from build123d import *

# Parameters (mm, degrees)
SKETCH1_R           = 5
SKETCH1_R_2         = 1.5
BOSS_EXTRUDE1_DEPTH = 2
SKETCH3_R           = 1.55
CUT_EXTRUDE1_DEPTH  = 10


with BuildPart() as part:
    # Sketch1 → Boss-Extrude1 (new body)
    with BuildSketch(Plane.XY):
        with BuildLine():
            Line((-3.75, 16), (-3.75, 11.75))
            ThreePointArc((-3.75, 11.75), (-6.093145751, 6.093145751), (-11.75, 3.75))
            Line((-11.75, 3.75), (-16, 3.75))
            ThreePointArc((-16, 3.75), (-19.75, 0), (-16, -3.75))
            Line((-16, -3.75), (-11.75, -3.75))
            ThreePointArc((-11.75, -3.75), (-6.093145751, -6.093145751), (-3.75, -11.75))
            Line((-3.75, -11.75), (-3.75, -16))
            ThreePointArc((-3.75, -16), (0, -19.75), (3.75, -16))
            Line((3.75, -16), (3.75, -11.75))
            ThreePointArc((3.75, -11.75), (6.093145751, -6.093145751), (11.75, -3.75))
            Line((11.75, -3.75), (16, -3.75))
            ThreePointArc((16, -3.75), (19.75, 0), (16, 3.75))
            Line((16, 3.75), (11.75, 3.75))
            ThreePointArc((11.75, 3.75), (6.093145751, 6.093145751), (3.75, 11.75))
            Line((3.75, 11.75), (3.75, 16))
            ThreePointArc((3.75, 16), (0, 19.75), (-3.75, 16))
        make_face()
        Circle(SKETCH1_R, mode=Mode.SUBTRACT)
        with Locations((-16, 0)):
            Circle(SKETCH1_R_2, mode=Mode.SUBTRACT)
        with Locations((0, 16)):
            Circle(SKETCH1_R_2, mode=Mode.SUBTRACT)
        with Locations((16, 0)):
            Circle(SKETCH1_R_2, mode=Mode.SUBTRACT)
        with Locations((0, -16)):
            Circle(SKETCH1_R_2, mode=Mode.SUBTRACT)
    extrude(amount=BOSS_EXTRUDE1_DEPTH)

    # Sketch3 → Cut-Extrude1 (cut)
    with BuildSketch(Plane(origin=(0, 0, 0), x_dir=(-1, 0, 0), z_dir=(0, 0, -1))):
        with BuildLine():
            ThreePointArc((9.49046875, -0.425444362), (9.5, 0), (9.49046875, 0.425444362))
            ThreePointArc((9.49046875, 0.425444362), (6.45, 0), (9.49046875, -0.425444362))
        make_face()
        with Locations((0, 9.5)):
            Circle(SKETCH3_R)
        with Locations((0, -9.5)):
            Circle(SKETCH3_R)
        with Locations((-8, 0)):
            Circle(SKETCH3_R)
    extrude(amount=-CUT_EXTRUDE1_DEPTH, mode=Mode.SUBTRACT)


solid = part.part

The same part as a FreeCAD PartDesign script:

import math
import FreeCAD as App
import Part
import Sketcher
from FreeCAD import Vector

doc = App.newDocument("Part")
body = doc.addObject("PartDesign::Body", "Body")

sketch1 = doc.addObject("Sketcher::SketchObject", "Sketch")
body.addObject(sketch1)
sketch1.AttachmentSupport = (doc.XY_Plane, [""])
sketch1.MapMode = "FlatFace"
sketch1.addGeometry([
    Part.LineSegment(Vector(-3.8, 16, 0), Vector(-3.8, 11.8, 0)),
    Part.ArcOfCircle(Part.Circle(Vector(-11.8, 11.8, 0), Vector(0, 0, 1), 8), math.radians(-90), math.radians(0)),
    Part.LineSegment(Vector(-11.8, 3.8, 0), Vector(-16, 3.8, 0)),
    Part.ArcOfCircle(Part.Circle(Vector(-16, 0, 0), Vector(0, 0, 1), 3.8), math.radians(90), math.radians(270)),
    Part.LineSegment(Vector(-16, -3.8, 0), Vector(-11.8, -3.8, 0)),
    Part.ArcOfCircle(Part.Circle(Vector(-11.8, -11.8, 0), Vector(0, 0, 1), 8), math.radians(0), math.radians(90)),
    Part.LineSegment(Vector(-3.8, -11.8, 0), Vector(-3.8, -16, 0)),
    Part.ArcOfCircle(Part.Circle(Vector(0, -16, 0), Vector(0, 0, 1), 3.8), math.radians(180), math.radians(360)),
    Part.LineSegment(Vector(3.8, -16, 0), Vector(3.8, -11.8, 0)),
    Part.ArcOfCircle(Part.Circle(Vector(11.8, -11.8, 0), Vector(0, 0, 1), 8), math.radians(90), math.radians(180)),
    Part.LineSegment(Vector(11.8, -3.8, 0), Vector(16, -3.8, 0)),
    Part.ArcOfCircle(Part.Circle(Vector(16, 0, 0), Vector(0, 0, 1), 3.8), math.radians(-90), math.radians(90)),
    Part.LineSegment(Vector(16, 3.8, 0), Vector(11.8, 3.8, 0)),
    Part.ArcOfCircle(Part.Circle(Vector(11.8, 11.8, 0), Vector(0, 0, 1), 8), math.radians(-180), math.radians(-90)),
    Part.LineSegment(Vector(3.8, 11.8, 0), Vector(3.8, 16, 0)),
    Part.ArcOfCircle(Part.Circle(Vector(0, 16, 0), Vector(0, 0, 1), 3.8), math.radians(0), math.radians(180)),
    Part.Circle(Vector(0, -16, 0), Vector(0, 0, 1), 1.5),
    Part.Circle(Vector(-16, 0, 0), Vector(0, 0, 1), 1.5),
    Part.Circle(Vector(0, 0, 0), Vector(0, 0, 1), 5),
    Part.Circle(Vector(16, 0, 0), Vector(0, 0, 1), 1.5),
    Part.Circle(Vector(0, 16, 0), Vector(0, 0, 1), 1.5),
], False)
sketch1.addConstraint([
    Sketcher.Constraint("Tangent", 0, 2, 1, 2),
    Sketcher.Constraint("Tangent", 1, 1, 2, 1),
    Sketcher.Constraint("Tangent", 2, 2, 3, 1),
    Sketcher.Constraint("Tangent", 3, 2, 4, 1),
    Sketcher.Constraint("Tangent", 4, 2, 5, 2),
    Sketcher.Constraint("Tangent", 5, 1, 6, 1),
    Sketcher.Constraint("Tangent", 6, 2, 7, 1),
    Sketcher.Constraint("Tangent", 7, 2, 8, 1),
    Sketcher.Constraint("Tangent", 8, 2, 9, 2),
    Sketcher.Constraint("Tangent", 9, 1, 10, 1),
    Sketcher.Constraint("Tangent", 10, 2, 11, 1),
    Sketcher.Constraint("Tangent", 11, 2, 12, 1),
    Sketcher.Constraint("Tangent", 12, 2, 13, 2),
    Sketcher.Constraint("Tangent", 13, 1, 14, 1),
    Sketcher.Constraint("Tangent", 14, 2, 15, 1),
    Sketcher.Constraint("Tangent", 15, 2, 0, 1),
    Sketcher.Constraint("Vertical", 0),
    Sketcher.Constraint("Horizontal", 2),
    Sketcher.Constraint("Horizontal", 4),
    Sketcher.Constraint("Vertical", 6),
    Sketcher.Constraint("Vertical", 8),
    Sketcher.Constraint("Horizontal", 10),
    Sketcher.Constraint("Horizontal", 12),
    Sketcher.Constraint("Vertical", 14),
    Sketcher.Constraint("Coincident", 18, 3, -1, 1),
    Sketcher.Constraint("Coincident", 16, 3, 7, 3),
    Sketcher.Constraint("Coincident", 17, 3, 3, 3),
    Sketcher.Constraint("Coincident", 19, 3, 11, 3),
    Sketcher.Constraint("Coincident", 20, 3, 15, 3),
    Sketcher.Constraint("Equal", 1, 5),
    Sketcher.Constraint("Equal", 3, 7),
    Sketcher.Constraint("Equal", 5, 9),
    Sketcher.Constraint("Equal", 7, 11),
    Sketcher.Constraint("Equal", 9, 13),
    Sketcher.Constraint("Equal", 11, 15),
    Sketcher.Constraint("Equal", 16, 17),
    Sketcher.Constraint("Equal", 17, 19),
    Sketcher.Constraint("Equal", 19, 20),
    Sketcher.Constraint("Symmetric", 1, 3, 9, 3, -1, 1),
    Sketcher.Constraint("Symmetric", 5, 3, 9, 3, -2),
    Sketcher.Constraint("Equal", 4, 10),
    Sketcher.Constraint("Equal", 12, 0),
    Sketcher.Constraint("Equal", 0, 6),
    Sketcher.Constraint("Diameter", 16, 3.0),
    Sketcher.Constraint("Diameter", 18, 10.0),
    Sketcher.Constraint("Radius", 1, 8.0),
    Sketcher.Constraint("Radius", 3, 3.75),
    Sketcher.Constraint("DistanceX", 3, 3, -1, 1, 16.0),
])
pad1 = doc.addObject("PartDesign::Pad", "Pad")
body.addObject(pad1)
pad1.Profile = sketch1
pad1.Length = 2

sketch2 = doc.addObject("Sketcher::SketchObject", "Sketch001")
body.addObject(sketch2)
sketch2.AttachmentSupport = (doc.XY_Plane, [""])
sketch2.MapMode = "FlatFace"
sketch2.addGeometry([
    Part.ArcOfCircle(Part.Circle(Vector(0, 0, 0), Vector(0, 0, 1), 9.5), math.radians(177.43), math.radians(182.57)),
    Part.ArcOfCircle(Part.Circle(Vector(-8, 0, 0), Vector(0, 0, 1), 1.6), math.radians(-164), math.radians(164)),
    Part.Circle(Vector(0, 9.5, 0), Vector(0, 0, 1), 1.6),
    Part.Circle(Vector(0, -9.5, 0), Vector(0, 0, 1), 1.6),
    Part.Circle(Vector(8, 0, 0), Vector(0, 0, 1), 1.6),
], False)
sketch2.addConstraint([
    Sketcher.Constraint("Coincident", 0, 1, 1, 2),
    Sketcher.Constraint("Coincident", 1, 1, 0, 2),
    Sketcher.Constraint("Coincident", 0, 3, -1, 1),
    Sketcher.Constraint("Equal", 1, 2),
    Sketcher.Constraint("Equal", 2, 3),
    Sketcher.Constraint("Equal", 3, 4),
    Sketcher.Constraint("Symmetric", 2, 3, 3, 3, -1, 1),
    Sketcher.Constraint("Symmetric", 1, 3, 4, 3, -1, 1),
    Sketcher.Constraint("PointOnObject", 1, 3, -1),
    Sketcher.Constraint("PointOnObject", 2, 3, -2),
    Sketcher.Constraint("Diameter", 2, 3.1),
    Sketcher.Constraint("Radius", 0, 9.5),
    Sketcher.Constraint("DistanceX", 1, 3, -1, 1, 8.0),
    Sketcher.Constraint("DistanceY", 3, 3, 2, 3, 19.0),
])
pocket1 = doc.addObject("PartDesign::Pocket", "Pocket")
body.addObject(pocket1)
pocket1.Profile = sketch2
pocket1.Length = 10
pocket1.Reversed = True

doc.recompute()
